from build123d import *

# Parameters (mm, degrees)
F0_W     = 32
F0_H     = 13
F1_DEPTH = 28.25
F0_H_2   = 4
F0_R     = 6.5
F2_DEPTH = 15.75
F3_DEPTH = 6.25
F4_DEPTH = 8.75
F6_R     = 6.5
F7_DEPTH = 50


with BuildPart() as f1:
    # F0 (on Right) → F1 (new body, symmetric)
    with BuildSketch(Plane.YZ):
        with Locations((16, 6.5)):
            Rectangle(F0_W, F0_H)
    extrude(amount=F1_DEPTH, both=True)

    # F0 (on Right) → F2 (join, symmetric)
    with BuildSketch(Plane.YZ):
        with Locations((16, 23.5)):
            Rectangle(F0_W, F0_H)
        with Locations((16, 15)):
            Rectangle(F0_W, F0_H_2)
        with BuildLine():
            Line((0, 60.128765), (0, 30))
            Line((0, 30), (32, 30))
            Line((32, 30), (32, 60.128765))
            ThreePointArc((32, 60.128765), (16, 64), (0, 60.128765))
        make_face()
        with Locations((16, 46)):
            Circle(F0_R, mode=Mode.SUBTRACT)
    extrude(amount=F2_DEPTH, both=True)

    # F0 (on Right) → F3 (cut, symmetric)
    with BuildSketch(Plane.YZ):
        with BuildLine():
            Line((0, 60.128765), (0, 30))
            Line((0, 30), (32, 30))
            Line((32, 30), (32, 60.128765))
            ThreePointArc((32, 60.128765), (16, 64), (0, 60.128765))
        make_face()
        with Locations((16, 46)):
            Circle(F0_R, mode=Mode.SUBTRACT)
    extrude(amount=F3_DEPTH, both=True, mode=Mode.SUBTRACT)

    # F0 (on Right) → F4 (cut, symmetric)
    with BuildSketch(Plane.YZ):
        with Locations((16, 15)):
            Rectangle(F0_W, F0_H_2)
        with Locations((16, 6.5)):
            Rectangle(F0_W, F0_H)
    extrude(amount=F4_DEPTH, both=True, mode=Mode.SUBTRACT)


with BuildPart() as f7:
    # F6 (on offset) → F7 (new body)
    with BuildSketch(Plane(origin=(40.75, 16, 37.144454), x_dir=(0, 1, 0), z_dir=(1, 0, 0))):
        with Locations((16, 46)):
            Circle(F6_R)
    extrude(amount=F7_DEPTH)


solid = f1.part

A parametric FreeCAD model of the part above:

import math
import FreeCAD as App
import Part
import Sketcher

V = App.Vector
Q = App.Units.Quantity


def add_polygon(sketch, points):
    """Adds a closed chain of lines whose ends are joined by coincident constraints."""
    first, n = sketch.GeometryCount, len(points)
    for a, b in zip(points, points[1:] + points[:1]):
        sketch.addGeometry(Part.LineSegment(App.Vector(*a, 0), App.Vector(*b, 0)), False)
    for i in range(n):
        sketch.addConstraint(Sketcher.Constraint("Coincident", first + i, 2, first + (i + 1) % n, 1))

doc = App.newDocument("Part")
body = doc.addObject("PartDesign::Body", "Body")

sketch1 = body.newObject("Sketcher::SketchObject", "Sketch")
sketch1.AttachmentSupport = (doc.getObject("YZ_Plane"), [""])
sketch1.MapMode = "FlatFace"
add_polygon(sketch1, [(0, 13), (0, 0), (32, 0), (32, 13)])
sketch1.addConstraint(Sketcher.Constraint("Vertical", 0))
sketch1.addConstraint(Sketcher.Constraint("Horizontal", 1))
sketch1.addConstraint(Sketcher.Constraint("Vertical", 2))
sketch1.addConstraint(Sketcher.Constraint("Horizontal", 3))
sketch1.addConstraint(Sketcher.Constraint("Coincident", 0, 2, -1, 1))
sketch1.addConstraint(Sketcher.Constraint("DistanceX", 1, 1, 1, 2, Q("32 mm")))
sketch1.addConstraint(Sketcher.Constraint("DistanceY", 0, 2, 0, 1, Q("13 mm")))
pad1 = body.newObject("PartDesign::Pad", "Pad")
pad1.Profile = sketch1
pad1.Length = 56.5
pad1.Midplane = True

sketch2 = body.newObject("Sketcher::SketchObject", "Sketch001")
sketch2.AttachmentSupport = (doc.getObject("YZ_Plane"), [""])
sketch2.MapMode = "FlatFace"
sketch2.addGeometry(Part.LineSegment(V(0, 13, 0), V(32, 13, 0)), False)
sketch2.addGeometry(Part.LineSegment(V(32, 13, 0), V(32, 60, 0)), False)
sketch2.addGeometry(Part.ArcOfCircle(Part.Circle(V(16, 29, 0), V(0, 0, 1), 35), math.radians(63), math.radians(117)), False)
sketch2.addGeometry(Part.LineSegment(V(0, 60, 0), V(0, 13, 0)), False)
sketch2.addGeometry(Part.Circle(V(16, 46, 0), V(0, 0, 1), 6), False)
sketch2.addConstraint(Sketcher.Constraint("Coincident", 0, 2, 1, 1))
sketch2.addConstraint(Sketcher.Constraint("Coincident", 1, 2, 2, 1))
sketch2.addConstraint(Sketcher.Constraint("Coincident", 2, 2, 3, 1))
sketch2.addConstraint(Sketcher.Constraint("Coincident", 3, 2, 0, 1))
sketch2.addConstraint(Sketcher.Constraint("Horizontal", 0))
sketch2.addConstraint(Sketcher.Constraint("Vertical", 1))
sketch2.addConstraint(Sketcher.Constraint("Vertical", 3))
sketch2.addConstraint(Sketcher.Constraint("PointOnObject", 2, 2, -2))
sketch2.addConstraint(Sketcher.Constraint("Horizontal", 1, 2, 2, 2))
sketch2.addConstraint(Sketcher.Constraint("Vertical", 2, 3, 4, 3))
sketch2.addConstraint(Sketcher.Constraint("Diameter", 4, Q("13 mm")))
sketch2.addConstraint(Sketcher.Constraint("Radius", 2, Q("35.000001 mm")))
sketch2.addConstraint(Sketcher.Constraint("DistanceX", 0, 1, 0, 2, Q("32 mm")))
sketch2.addConstraint(Sketcher.Constraint("DistanceY", -1, 1, 2, 3, Q("28.999999 mm")))
sketch2.addConstraint(Sketcher.Constraint("DistanceY", -1, 1, 4, 3, Q("46 mm")))
sketch2.addConstraint(Sketcher.Constraint("DistanceY", -1, 1, 0, 2, Q("13 mm")))
pad2 = body.newObject("PartDesign::Pad", "Pad001")
pad2.Profile = sketch2
pad2.Length = 31.5
pad2.Midplane = True

sketch3 = body.newObject("Sketcher::SketchObject", "Sketch002")
sketch3.AttachmentSupport = (doc.getObject("YZ_Plane"), [""])
sketch3.MapMode = "FlatFace"
sketch3.addGeometry(Part.LineSegment(V(0, 60, 0), V(0, 30, 0)), False)
sketch3.addGeometry(Part.LineSegment(V(0, 30, 0), V(32, 30, 0)), False)
sketch3.addGeometry(Part.LineSegment(V(32, 30, 0), V(32, 60, 0)), False)
sketch3.addGeometry(Part.ArcOfCircle(Part.Circle(V(16, 29, 0), V(0, 0, 1), 35), math.radians(63), math.radians(117)), False)
sketch3.addGeometry(Part.Circle(V(16, 46, 0), V(0, 0, 1), 6), False)
sketch3.addConstraint(Sketcher.Constraint("Coincident", 0, 2, 1, 1))
sketch3.addConstraint(Sketcher.Constraint("Coincident", 1, 2, 2, 1))
sketch3.addConstraint(Sketcher.Constraint("Coincident", 2, 2, 3, 1))
sketch3.addConstraint(Sketcher.Constraint("Coincident", 3, 2, 0, 1))
sketch3.addConstraint(Sketcher.Constraint("Vertical", 0))
sketch3.addConstraint(Sketcher.Constraint("Horizontal", 1))
sketch3.addConstraint(Sketcher.Constraint("Vertical", 2))
sketch3.addConstraint(Sketcher.Constraint("PointOnObject", 0, 2, -2))
sketch3.addConstraint(Sketcher.Constraint("Horizontal", 2, 2, 3, 2))
sketch3.addConstraint(Sketcher.Constraint("Vertical", 3, 3, 4, 3))
sketch3.addConstraint(Sketcher.Constraint("Diameter", 4, Q("13 mm")))
sketch3.addConstraint(Sketcher.Constraint("Radius", 3, Q("35.000001 mm")))
sketch3.addConstraint(Sketcher.Constraint("DistanceX", 1, 1, 1, 2, Q("32 mm")))
sketch3.addConstraint(Sketcher.Constraint("DistanceY", -1, 1, 3, 3, Q("28.999999 mm")))
sketch3.addConstraint(Sketcher.Constraint("DistanceY", -1, 1, 4, 3, Q("46 mm")))
sketch3.addConstraint(Sketcher.Constraint("DistanceY", -1, 1, 0, 2, Q("30 mm")))
pocket1 = body.newObject("PartDesign::Pocket", "Pocket")
pocket1.Profile = sketch3
pocket1.Length = 12.5
pocket1.Midplane = True

sketch4 = body.newObject("Sketcher::SketchObject", "Sketch003")
sketch4.AttachmentSupport = (doc.getObject("YZ_Plane"), [""])
sketch4.MapMode = "FlatFace"
add_polygon(sketch4, [(0, 17), (0, 0), (32, 0), (32, 17)])
sketch4.addConstraint(Sketcher.Constraint("Vertical", 0))
sketch4.addConstraint(Sketcher.Constraint("Horizontal", 1))
sketch4.addConstraint(Sketcher.Constraint("Vertical", 2))
sketch4.addConstraint(Sketcher.Constraint("Horizontal", 3))
sketch4.addConstraint(Sketcher.Constraint("Coincident", 0, 2, -1, 1))
sketch4.addConstraint(Sketcher.Constraint("DistanceX", 1, 1, 1, 2, Q("32 mm")))
sketch4.addConstraint(Sketcher.Constraint("DistanceY", 0, 2, 0, 1, Q("17 mm")))
pocket2 = body.newObject("PartDesign::Pocket", "Pocket001")
pocket2.Profile = sketch4
pocket2.Length = 17.5
pocket2.Midplane = True
body2 = doc.addObject("PartDesign::Body", "Body001")

sketch5 = body2.newObject("Sketcher::SketchObject", "Sketch004")
sketch5.AttachmentSupport = (doc.getObject("YZ_Plane001"), [""])
sketch5.MapMode = "FlatFace"
sketch5.AttachmentOffset = App.Placement(V(0, 0, 40.75), App.Rotation())
sketch5.addGeometry(Part.Circle(V(32, 83, 0), V(0, 0, 1), 6), False)
sketch5.addConstraint(Sketcher.Constraint("Diameter", 0, Q("13 mm")))
sketch5.addConstraint(Sketcher.Constraint("DistanceX", -1, 1, 0, 3, Q("32 mm")))
sketch5.addConstraint(Sketcher.Constraint("DistanceY", -1, 1, 0, 3, Q("83.144454 mm")))
pad3 = body2.newObject("PartDesign::Pad", "Pad002")
pad3.Profile = sketch5
pad3.Length = 50
body2.Visibility = False

doc.recompute()
